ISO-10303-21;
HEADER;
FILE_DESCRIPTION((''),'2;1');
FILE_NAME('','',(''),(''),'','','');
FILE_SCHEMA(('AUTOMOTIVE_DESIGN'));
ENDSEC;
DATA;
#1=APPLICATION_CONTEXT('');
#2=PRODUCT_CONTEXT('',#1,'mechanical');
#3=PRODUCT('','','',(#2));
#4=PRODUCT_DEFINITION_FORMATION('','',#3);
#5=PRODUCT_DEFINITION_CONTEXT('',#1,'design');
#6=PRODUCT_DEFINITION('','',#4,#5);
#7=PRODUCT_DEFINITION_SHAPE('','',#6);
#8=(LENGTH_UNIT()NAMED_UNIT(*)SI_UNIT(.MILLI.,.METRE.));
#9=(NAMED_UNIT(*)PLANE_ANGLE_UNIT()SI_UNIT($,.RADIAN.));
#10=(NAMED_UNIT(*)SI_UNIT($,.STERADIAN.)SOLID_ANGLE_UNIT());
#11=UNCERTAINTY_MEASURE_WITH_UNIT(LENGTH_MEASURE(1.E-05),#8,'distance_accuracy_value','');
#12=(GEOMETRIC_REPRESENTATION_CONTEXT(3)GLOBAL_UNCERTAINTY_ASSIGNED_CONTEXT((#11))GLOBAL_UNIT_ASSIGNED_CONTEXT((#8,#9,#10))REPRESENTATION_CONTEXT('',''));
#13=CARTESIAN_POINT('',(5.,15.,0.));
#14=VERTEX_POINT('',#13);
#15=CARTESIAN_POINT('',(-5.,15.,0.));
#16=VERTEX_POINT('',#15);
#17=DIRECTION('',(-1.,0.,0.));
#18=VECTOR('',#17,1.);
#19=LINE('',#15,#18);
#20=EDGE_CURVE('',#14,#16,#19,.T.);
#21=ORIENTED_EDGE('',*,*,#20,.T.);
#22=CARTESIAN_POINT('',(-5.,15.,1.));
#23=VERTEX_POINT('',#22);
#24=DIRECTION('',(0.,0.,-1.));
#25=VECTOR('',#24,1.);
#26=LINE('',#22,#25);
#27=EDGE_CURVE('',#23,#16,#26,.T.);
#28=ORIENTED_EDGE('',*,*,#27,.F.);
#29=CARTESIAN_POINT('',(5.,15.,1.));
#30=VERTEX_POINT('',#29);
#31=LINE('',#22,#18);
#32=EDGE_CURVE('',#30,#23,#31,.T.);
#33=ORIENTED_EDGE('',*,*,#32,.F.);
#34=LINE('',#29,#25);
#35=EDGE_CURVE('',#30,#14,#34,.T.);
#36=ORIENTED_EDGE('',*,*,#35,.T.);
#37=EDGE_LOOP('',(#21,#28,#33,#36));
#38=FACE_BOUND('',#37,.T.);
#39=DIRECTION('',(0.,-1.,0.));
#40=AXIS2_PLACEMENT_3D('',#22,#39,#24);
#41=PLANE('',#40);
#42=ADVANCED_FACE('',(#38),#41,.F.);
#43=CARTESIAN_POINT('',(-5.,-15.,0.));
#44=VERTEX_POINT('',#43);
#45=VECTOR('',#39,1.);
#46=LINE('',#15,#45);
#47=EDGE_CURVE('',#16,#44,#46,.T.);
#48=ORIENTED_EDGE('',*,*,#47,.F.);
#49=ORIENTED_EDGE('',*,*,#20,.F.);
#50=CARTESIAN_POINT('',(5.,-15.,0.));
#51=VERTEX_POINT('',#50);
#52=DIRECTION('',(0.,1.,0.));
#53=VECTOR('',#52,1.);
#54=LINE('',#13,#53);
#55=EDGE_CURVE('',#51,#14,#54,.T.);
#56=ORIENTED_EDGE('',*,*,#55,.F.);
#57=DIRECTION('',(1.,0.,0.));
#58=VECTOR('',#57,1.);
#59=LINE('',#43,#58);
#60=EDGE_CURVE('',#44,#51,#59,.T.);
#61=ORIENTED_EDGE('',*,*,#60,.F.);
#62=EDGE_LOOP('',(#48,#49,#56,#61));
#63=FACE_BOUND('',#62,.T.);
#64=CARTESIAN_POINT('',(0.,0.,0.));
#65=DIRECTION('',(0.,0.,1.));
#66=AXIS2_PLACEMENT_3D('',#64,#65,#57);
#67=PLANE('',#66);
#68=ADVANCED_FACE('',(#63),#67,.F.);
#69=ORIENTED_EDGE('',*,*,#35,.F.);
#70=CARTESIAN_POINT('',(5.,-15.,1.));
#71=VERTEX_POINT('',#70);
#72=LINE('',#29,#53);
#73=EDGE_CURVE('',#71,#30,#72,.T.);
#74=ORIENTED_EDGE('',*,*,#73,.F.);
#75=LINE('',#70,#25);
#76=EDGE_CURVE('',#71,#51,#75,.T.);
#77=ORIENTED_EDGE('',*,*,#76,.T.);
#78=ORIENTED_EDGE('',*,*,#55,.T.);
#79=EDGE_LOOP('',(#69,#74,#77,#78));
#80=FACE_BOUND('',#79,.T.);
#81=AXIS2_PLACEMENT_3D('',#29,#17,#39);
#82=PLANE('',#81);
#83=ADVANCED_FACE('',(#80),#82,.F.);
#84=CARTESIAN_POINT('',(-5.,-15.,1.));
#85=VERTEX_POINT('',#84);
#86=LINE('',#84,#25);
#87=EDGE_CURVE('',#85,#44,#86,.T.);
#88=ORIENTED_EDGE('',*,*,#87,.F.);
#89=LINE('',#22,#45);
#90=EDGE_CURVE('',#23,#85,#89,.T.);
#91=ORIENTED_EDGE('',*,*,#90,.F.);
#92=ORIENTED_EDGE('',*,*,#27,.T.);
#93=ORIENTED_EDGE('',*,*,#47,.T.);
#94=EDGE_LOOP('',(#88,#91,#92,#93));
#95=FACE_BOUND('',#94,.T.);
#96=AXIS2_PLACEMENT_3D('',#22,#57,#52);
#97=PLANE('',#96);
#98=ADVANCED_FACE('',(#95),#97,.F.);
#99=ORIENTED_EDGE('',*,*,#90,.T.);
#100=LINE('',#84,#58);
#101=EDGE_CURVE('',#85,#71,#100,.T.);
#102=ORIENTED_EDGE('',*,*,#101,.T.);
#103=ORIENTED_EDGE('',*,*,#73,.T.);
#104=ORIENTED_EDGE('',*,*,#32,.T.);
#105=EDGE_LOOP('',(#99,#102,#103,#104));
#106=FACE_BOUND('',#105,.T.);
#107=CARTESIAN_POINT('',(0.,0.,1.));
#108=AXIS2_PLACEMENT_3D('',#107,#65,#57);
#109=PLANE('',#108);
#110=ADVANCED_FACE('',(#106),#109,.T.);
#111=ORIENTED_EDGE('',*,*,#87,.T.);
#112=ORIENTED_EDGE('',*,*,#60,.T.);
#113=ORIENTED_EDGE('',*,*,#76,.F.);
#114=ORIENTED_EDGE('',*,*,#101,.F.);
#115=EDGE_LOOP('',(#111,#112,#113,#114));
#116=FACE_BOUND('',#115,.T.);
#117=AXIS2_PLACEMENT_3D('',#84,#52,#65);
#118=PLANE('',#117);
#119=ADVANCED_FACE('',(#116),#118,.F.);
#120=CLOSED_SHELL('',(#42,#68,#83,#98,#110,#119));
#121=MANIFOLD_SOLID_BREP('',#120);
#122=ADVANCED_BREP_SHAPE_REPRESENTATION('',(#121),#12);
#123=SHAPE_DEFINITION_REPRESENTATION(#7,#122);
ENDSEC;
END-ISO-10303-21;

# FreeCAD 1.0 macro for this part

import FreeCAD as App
import Part
import Sketcher
from FreeCAD import Vector


def add_polygon(sketch, points):
    """Adds a closed chain of lines whose ends are joined by coincident constraints."""
    first, n = sketch.GeometryCount, len(points)
    for a, b in zip(points, points[1:] + points[:1]):
        sketch.addGeometry(Part.LineSegment(App.Vector(*a, 0), App.Vector(*b, 0)), False)
    for i in range(n):
        sketch.addConstraint(Sketcher.Constraint("Coincident", first + i, 2, first + (i + 1) % n, 1))

doc = App.newDocument("Part")
body = doc.addObject("PartDesign::Body", "Body")

# Sketch on XY plane
sketch1 = body.newObject("Sketcher::SketchObject", "Sketch")
sketch1.AttachmentSupport = (doc.getObject("XY_Plane"), [""])
sketch1.MapMode = "FlatFace"
add_polygon(sketch1, [(-5, 15), (-5, -15), (5, -15), (5, 15)])  # lines 0-3
sketch1.addConstraint([
    Sketcher.Constraint("Vertical", 0),
    Sketcher.Constraint("Horizontal", 1),
    Sketcher.Constraint("Vertical", 2),
    Sketcher.Constraint("Horizontal", 3),
    Sketcher.Constraint("Symmetric", 0, 2, 2, 2, -1, 1),
    Sketcher.Constraint("DistanceX", 1, 1, 1, 2, 10.0),
    Sketcher.Constraint("DistanceY", 0, 2, 0, 1, 30.0),
])
pad1 = body.newObject("PartDesign::Pad", "Pad")
pad1.Profile = sketch1
pad1.Length = 1

doc.recompute()
